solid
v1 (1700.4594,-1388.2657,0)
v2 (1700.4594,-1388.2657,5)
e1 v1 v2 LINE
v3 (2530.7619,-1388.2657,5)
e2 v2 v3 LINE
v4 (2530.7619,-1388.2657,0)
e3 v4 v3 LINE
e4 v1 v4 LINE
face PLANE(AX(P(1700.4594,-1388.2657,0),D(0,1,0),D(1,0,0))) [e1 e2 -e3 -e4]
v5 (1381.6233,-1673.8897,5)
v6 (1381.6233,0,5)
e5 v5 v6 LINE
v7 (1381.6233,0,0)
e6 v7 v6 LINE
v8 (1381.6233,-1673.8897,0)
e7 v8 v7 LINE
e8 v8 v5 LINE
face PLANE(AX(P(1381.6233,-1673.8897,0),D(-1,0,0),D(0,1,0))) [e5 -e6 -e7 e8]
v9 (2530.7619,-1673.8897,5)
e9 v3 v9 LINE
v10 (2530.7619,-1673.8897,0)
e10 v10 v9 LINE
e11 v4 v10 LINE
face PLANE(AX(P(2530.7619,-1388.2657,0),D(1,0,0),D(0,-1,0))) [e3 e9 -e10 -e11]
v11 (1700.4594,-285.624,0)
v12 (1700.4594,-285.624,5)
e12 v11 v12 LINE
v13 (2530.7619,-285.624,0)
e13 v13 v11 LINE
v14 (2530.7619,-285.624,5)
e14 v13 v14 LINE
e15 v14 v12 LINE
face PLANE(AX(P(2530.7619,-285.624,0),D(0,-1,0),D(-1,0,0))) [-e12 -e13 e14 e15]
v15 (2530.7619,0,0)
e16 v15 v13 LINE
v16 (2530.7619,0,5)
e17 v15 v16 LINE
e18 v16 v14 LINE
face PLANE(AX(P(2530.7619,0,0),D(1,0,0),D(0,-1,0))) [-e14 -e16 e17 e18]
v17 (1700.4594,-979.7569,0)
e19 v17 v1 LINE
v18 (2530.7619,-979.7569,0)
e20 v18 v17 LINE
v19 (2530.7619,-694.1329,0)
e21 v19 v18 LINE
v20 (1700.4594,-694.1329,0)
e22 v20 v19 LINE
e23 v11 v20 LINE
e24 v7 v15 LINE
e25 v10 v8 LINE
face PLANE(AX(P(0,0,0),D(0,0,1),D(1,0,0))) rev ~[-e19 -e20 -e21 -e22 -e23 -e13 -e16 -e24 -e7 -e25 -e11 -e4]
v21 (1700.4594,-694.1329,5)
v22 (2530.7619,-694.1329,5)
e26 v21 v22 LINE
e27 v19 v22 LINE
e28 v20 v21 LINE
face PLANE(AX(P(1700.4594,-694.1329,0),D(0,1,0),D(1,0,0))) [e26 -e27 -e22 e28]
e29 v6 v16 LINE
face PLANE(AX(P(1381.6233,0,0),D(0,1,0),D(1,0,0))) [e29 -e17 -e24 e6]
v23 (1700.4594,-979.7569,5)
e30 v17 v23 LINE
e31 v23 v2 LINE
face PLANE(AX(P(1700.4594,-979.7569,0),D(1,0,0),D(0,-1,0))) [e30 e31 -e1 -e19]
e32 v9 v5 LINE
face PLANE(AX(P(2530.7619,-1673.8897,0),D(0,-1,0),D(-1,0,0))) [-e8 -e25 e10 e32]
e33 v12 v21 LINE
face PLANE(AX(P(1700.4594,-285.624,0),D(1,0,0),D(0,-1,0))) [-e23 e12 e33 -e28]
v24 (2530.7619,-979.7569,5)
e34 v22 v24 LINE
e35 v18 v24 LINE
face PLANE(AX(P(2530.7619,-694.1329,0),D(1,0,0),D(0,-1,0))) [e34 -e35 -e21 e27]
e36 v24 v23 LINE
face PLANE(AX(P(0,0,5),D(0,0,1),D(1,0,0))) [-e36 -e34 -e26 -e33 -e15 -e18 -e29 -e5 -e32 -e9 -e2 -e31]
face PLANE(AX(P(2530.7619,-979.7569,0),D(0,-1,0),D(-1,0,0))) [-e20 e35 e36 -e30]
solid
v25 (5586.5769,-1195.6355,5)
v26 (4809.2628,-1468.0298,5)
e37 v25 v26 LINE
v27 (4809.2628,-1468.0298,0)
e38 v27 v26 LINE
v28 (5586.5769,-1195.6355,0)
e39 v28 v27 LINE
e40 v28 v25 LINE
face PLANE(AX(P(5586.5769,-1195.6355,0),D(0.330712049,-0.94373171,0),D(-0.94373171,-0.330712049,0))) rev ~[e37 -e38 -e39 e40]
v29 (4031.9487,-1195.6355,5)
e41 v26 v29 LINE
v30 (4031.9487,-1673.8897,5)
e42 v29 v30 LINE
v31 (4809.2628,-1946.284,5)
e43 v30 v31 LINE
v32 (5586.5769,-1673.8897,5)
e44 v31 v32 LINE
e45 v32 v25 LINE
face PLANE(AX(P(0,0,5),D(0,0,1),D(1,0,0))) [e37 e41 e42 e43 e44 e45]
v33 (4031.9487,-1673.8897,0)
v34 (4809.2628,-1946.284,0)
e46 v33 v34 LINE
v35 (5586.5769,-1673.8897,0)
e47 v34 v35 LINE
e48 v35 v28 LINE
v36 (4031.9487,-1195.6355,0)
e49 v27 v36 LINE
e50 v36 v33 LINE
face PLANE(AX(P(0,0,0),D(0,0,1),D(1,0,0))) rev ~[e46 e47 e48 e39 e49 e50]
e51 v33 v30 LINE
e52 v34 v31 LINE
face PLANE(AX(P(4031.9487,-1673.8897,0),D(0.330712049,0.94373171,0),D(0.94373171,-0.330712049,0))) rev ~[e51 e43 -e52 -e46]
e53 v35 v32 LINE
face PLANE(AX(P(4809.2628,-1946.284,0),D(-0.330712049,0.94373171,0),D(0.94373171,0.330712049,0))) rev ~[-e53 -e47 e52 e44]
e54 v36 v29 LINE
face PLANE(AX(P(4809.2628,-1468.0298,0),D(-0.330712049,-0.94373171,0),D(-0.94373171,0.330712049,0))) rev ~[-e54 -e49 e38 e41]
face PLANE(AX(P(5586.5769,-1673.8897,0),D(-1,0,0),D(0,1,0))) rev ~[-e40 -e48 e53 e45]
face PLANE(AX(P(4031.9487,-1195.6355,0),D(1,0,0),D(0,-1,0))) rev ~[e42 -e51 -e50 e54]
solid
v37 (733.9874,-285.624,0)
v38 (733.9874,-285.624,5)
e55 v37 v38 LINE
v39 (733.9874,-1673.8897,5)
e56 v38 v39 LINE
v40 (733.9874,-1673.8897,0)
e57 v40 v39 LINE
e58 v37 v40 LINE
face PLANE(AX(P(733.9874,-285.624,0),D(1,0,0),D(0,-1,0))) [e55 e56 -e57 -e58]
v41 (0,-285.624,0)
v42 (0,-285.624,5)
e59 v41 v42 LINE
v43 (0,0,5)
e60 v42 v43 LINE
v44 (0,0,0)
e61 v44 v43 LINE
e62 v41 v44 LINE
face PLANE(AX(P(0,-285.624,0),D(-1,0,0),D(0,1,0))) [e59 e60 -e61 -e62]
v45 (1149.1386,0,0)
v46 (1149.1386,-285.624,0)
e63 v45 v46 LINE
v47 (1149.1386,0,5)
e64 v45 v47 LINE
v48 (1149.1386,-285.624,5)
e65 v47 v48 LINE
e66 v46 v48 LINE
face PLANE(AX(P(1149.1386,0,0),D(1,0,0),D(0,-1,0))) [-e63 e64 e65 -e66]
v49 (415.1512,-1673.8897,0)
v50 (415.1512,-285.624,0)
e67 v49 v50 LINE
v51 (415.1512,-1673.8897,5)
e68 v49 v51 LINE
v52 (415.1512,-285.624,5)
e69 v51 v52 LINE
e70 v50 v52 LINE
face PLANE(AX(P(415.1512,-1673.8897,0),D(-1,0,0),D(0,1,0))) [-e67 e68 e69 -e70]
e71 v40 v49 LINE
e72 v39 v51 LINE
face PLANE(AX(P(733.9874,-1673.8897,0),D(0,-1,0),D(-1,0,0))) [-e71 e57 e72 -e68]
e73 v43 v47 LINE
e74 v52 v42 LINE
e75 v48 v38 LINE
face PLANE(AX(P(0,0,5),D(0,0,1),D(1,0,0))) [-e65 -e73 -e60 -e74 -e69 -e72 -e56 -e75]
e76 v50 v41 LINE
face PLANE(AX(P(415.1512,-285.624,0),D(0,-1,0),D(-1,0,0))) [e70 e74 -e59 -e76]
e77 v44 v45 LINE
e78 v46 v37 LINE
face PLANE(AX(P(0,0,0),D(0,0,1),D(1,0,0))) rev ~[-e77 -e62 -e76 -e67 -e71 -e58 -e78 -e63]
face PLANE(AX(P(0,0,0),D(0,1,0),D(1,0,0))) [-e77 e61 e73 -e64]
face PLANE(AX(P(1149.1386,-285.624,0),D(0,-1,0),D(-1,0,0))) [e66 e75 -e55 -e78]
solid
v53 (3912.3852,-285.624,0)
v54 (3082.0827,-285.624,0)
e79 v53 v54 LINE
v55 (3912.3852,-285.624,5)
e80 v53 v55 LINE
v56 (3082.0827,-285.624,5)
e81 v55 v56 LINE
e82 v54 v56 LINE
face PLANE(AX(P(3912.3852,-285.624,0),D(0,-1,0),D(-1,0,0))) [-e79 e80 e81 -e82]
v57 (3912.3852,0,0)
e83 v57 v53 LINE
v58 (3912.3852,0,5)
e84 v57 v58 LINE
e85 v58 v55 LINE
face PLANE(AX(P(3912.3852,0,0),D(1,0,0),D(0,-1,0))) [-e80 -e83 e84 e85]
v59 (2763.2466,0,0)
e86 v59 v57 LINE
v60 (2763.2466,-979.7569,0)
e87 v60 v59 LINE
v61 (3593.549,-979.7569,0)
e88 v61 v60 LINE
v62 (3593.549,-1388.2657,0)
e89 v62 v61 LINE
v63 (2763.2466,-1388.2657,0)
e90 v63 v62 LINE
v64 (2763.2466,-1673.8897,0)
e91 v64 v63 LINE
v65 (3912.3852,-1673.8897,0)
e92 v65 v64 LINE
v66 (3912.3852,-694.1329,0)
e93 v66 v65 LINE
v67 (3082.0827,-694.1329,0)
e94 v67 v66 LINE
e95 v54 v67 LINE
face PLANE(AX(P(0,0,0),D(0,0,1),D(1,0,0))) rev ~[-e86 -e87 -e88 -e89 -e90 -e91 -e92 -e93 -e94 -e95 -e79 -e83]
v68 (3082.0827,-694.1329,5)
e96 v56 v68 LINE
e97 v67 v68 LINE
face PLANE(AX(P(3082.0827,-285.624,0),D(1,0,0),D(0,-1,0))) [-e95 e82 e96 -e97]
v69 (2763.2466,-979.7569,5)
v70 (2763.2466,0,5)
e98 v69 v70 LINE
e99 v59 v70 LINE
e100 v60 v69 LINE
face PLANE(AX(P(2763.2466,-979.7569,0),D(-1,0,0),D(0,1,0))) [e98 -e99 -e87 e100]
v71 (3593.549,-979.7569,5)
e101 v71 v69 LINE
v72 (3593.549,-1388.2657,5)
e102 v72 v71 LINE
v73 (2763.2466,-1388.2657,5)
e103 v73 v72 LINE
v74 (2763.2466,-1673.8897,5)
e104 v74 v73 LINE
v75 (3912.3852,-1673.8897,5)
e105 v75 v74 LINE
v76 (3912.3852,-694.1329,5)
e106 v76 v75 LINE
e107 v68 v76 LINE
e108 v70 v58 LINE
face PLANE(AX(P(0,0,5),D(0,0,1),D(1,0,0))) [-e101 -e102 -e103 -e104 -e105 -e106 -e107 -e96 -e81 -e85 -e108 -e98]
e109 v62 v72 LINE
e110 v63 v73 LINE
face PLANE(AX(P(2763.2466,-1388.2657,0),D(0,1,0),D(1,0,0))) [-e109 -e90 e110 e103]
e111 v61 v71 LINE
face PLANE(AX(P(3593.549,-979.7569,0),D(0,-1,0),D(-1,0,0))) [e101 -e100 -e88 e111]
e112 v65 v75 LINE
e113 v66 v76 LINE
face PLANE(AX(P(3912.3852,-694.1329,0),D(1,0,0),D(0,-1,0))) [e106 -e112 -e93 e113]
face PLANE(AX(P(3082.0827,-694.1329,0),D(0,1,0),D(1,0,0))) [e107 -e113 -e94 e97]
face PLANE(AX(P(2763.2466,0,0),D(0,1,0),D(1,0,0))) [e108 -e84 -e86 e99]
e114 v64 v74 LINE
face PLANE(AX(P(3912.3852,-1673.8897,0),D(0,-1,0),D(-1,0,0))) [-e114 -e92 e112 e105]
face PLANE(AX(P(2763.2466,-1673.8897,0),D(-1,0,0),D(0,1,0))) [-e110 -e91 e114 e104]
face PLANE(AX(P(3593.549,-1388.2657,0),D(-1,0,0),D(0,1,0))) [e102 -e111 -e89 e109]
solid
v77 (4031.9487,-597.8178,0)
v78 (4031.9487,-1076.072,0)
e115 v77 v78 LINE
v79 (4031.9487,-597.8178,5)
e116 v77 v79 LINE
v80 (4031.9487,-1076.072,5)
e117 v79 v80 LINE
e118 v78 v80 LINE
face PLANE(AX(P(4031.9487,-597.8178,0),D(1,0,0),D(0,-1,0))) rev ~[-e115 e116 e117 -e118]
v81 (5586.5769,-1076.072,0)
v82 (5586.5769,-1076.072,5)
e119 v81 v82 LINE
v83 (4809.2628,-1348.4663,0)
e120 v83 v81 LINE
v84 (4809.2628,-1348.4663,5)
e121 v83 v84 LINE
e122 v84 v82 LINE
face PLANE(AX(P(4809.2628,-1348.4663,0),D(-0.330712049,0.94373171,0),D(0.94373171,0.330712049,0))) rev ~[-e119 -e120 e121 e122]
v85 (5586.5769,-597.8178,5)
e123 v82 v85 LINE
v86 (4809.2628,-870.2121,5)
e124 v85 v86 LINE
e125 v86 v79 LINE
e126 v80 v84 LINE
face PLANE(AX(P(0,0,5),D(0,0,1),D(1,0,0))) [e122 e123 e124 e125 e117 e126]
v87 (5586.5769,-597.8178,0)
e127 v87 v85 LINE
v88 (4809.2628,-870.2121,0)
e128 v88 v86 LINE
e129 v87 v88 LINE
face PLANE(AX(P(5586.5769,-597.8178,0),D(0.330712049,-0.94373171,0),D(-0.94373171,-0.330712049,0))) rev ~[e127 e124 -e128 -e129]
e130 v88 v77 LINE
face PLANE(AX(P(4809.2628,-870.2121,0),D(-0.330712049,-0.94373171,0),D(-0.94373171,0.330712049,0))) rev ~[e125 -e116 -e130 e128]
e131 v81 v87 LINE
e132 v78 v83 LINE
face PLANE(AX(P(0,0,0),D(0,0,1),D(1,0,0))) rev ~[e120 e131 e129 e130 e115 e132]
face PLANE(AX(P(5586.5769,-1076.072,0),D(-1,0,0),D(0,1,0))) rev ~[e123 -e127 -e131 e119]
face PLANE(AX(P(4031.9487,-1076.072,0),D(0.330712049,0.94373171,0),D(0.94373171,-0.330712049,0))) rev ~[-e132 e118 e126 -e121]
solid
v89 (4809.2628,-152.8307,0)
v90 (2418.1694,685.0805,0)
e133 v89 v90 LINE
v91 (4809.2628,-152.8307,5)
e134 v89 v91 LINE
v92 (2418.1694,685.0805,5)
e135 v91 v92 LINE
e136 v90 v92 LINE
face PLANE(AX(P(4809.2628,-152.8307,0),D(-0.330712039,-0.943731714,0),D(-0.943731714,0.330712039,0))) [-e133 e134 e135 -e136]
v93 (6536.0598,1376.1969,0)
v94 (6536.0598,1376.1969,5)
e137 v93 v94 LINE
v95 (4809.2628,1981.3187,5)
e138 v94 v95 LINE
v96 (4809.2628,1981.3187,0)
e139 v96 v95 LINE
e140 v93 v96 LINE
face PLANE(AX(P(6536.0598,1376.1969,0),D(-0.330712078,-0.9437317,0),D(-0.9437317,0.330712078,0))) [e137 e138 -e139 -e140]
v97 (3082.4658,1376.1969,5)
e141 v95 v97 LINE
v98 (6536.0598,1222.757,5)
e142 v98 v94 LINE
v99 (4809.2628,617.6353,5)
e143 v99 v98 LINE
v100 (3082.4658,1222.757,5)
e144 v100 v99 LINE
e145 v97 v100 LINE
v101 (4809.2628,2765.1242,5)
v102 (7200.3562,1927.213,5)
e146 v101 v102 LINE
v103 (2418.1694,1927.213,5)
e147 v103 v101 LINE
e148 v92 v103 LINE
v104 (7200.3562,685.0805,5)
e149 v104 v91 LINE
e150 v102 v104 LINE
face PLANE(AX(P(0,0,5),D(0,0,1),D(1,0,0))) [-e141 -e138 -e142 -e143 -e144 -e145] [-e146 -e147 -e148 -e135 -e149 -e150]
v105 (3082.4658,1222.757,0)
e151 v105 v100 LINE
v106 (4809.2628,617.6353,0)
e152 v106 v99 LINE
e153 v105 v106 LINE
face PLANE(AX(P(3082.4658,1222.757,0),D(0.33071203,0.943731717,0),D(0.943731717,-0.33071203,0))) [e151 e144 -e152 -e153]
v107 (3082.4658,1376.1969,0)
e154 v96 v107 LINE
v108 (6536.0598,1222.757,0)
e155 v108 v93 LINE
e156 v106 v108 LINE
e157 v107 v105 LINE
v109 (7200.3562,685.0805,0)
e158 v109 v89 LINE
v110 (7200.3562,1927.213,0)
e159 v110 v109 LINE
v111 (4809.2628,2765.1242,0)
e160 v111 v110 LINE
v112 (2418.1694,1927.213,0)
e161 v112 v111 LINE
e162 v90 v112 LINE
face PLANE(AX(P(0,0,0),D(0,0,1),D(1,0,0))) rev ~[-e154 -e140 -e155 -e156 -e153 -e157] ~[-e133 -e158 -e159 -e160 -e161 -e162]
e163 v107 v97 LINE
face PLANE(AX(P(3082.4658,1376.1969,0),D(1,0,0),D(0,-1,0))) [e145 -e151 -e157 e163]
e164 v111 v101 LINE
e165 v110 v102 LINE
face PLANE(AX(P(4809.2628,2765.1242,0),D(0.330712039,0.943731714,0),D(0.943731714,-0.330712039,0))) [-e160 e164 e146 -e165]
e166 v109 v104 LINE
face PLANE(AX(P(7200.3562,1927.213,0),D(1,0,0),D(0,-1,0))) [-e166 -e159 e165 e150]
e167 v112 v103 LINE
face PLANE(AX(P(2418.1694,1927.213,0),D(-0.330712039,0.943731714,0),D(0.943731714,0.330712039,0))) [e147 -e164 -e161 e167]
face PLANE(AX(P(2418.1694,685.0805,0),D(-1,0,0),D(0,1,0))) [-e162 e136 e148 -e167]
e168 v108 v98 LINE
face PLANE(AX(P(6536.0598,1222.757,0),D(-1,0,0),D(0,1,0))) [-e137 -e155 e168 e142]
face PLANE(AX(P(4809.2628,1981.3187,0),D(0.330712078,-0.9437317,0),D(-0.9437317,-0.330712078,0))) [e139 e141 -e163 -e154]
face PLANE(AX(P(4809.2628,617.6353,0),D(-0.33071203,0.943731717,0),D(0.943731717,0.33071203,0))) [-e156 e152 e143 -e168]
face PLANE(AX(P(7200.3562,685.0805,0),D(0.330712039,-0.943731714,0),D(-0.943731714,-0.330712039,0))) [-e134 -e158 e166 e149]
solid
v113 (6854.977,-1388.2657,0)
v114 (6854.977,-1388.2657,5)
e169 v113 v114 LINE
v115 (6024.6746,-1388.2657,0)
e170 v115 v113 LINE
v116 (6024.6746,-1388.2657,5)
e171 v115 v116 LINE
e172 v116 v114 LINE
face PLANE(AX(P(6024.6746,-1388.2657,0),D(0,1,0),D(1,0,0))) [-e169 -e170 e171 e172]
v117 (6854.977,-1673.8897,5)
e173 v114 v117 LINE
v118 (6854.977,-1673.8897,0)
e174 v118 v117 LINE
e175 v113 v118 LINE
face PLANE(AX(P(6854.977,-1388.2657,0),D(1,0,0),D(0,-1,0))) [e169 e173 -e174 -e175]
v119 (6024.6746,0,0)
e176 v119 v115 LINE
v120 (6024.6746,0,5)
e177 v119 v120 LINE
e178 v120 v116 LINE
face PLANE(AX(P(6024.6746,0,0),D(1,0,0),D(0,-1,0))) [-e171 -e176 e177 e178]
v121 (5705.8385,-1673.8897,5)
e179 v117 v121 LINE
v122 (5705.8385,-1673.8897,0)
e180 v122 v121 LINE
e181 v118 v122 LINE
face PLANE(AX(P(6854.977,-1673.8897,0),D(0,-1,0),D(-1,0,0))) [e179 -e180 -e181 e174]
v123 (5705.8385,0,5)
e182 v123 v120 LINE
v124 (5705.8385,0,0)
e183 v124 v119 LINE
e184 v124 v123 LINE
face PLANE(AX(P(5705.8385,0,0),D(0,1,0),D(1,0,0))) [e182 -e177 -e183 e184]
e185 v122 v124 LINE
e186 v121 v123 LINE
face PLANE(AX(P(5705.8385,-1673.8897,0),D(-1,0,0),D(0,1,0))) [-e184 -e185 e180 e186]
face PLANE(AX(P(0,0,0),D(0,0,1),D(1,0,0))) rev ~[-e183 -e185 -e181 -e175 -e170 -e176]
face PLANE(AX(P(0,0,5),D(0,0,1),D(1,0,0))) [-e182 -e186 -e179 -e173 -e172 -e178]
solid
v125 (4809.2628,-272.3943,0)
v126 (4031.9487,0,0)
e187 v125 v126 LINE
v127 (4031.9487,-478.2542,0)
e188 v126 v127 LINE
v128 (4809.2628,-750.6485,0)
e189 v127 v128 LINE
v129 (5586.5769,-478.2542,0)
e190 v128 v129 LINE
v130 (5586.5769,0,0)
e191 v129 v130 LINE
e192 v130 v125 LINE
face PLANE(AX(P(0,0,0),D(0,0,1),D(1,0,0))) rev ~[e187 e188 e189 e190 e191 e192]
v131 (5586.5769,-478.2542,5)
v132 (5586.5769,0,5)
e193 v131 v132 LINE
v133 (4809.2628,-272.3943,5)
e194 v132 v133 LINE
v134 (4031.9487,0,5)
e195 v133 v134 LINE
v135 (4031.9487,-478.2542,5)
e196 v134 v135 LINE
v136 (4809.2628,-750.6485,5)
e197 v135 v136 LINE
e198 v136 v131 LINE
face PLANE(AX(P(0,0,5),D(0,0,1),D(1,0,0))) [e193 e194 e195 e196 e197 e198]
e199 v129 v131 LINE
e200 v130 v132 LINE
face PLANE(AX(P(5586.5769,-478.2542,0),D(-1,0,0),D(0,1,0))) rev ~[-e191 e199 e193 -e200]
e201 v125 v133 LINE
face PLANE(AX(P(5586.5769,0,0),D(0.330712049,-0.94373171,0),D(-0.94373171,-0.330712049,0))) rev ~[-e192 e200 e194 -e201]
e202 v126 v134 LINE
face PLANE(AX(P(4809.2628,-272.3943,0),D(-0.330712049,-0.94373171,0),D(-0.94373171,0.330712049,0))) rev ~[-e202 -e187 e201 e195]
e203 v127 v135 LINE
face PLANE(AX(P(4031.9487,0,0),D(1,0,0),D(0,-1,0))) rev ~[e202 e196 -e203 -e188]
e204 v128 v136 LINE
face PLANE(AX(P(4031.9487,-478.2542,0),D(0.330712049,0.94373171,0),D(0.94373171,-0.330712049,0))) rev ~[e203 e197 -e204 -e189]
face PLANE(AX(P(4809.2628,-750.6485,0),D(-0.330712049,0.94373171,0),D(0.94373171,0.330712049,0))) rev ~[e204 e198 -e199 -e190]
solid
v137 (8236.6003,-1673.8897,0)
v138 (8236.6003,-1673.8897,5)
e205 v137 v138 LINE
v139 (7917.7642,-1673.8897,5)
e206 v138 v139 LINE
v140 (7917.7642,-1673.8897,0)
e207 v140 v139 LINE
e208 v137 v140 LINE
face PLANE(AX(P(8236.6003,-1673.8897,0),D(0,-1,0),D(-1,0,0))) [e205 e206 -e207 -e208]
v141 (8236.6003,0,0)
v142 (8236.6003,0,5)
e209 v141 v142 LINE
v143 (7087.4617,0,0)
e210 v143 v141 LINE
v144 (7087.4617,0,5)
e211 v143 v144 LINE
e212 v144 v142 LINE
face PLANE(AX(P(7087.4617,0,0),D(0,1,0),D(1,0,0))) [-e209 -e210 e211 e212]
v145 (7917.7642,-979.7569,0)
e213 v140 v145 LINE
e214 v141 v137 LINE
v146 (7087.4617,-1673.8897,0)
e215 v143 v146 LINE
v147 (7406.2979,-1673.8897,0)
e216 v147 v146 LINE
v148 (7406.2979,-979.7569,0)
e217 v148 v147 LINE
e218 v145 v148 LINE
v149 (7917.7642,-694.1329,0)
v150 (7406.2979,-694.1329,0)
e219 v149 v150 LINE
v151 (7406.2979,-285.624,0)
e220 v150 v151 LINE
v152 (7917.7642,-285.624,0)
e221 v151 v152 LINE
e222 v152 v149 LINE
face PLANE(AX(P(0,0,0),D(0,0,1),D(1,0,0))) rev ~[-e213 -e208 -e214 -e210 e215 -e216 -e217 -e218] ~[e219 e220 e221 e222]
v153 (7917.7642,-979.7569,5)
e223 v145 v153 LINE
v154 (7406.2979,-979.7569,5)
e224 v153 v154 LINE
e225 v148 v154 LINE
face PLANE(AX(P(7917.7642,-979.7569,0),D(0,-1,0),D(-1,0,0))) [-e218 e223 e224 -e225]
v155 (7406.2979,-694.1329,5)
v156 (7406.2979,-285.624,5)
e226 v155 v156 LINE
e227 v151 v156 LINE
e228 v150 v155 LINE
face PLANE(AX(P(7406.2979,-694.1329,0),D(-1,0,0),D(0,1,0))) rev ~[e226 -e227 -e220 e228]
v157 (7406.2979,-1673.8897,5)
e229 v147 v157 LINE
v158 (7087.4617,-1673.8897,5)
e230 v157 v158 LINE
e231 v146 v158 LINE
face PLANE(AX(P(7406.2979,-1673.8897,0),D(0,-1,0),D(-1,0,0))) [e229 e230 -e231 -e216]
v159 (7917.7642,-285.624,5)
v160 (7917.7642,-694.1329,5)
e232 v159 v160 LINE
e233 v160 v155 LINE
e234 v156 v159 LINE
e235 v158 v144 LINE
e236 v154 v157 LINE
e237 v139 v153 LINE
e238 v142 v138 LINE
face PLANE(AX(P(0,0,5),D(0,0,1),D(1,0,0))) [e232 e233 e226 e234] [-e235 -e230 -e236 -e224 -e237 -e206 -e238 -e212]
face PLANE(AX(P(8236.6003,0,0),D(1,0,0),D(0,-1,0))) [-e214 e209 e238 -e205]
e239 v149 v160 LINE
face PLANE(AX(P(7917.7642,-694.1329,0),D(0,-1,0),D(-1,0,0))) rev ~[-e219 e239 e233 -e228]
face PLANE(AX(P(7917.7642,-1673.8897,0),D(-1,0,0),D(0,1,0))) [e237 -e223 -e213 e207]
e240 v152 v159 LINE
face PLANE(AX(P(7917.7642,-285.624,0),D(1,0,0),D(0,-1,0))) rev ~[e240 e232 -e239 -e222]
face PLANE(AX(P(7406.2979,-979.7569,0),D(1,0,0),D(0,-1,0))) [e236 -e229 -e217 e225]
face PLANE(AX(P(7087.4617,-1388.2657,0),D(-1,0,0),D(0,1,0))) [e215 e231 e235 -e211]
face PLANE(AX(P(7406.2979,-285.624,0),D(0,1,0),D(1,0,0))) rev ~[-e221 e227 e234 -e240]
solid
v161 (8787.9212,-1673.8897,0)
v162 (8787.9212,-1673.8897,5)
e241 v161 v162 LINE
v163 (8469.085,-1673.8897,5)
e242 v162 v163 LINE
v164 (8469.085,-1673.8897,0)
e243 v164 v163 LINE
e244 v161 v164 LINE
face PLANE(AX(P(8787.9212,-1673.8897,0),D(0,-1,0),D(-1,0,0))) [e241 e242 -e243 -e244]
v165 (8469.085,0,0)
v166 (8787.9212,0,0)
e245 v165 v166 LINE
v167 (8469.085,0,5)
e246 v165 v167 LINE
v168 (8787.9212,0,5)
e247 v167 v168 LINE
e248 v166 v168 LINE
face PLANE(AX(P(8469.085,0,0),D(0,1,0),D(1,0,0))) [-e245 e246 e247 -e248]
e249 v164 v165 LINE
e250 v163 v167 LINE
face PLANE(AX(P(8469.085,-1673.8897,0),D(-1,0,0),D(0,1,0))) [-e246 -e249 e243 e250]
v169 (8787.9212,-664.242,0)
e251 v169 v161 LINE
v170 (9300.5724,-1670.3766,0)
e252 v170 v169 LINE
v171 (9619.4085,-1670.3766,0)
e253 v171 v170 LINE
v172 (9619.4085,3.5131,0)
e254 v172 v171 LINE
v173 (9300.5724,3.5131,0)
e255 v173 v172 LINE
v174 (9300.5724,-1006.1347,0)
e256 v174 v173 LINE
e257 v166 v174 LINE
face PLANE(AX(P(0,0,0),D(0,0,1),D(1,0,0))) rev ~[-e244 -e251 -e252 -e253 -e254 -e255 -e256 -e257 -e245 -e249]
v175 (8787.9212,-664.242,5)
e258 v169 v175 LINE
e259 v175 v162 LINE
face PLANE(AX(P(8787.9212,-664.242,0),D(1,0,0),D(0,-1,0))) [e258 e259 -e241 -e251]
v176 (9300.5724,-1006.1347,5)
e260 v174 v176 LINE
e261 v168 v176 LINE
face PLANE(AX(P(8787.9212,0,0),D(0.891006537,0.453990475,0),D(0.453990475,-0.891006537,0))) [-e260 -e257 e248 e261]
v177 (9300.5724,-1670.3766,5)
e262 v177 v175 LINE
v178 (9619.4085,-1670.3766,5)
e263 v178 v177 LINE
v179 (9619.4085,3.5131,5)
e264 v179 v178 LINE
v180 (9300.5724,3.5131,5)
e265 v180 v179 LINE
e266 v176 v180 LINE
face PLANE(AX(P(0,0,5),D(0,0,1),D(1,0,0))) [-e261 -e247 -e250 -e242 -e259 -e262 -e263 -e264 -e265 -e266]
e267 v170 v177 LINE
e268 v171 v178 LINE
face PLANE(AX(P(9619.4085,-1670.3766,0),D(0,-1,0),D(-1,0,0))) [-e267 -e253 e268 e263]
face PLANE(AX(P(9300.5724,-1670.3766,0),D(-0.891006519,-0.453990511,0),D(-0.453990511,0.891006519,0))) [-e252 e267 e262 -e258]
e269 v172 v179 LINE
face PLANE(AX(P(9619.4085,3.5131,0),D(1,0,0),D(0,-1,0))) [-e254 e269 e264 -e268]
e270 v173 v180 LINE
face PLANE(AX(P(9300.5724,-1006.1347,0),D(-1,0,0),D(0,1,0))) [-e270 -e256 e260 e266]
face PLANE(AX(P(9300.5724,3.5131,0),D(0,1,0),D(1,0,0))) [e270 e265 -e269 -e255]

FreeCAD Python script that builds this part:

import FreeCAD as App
import Part
import Sketcher
Q = App.Units.Quantity


def add_polygon(sketch, points):
    """Adds a closed chain of lines whose ends are joined by coincident constraints."""
    first, n = sketch.GeometryCount, len(points)
    for a, b in zip(points, points[1:] + points[:1]):
        sketch.addGeometry(Part.LineSegment(App.Vector(*a, 0), App.Vector(*b, 0)), False)
    for i in range(n):
        sketch.addConstraint(Sketcher.Constraint("Coincident", first + i, 2, first + (i + 1) % n, 1))

doc = App.newDocument("Part")
body = doc.addObject("PartDesign::Body", "Body")
body.AllowCompound = True

# Sketch on XY plane
sketch1 = body.newObject("Sketcher::SketchObject", "Sketch")
sketch1.AttachmentSupport = (doc.getObject("XY_Plane"), [""])
sketch1.MapMode = "FlatFace"
add_polygon(sketch1, [(1149.1386, 0), (0, 0), (0, -285.624), (415.1512, -285.624), (415.1512, -1673.8897), (733.9874, -1673.8897), (733.9874, -285.624), (1149.1386, -285.624)])  # lines 0-7
add_polygon(sketch1, [(2530.7619, 0), (1381.6233, 0), (1381.6233, -1673.8897), (2530.7619, -1673.8897), (2530.7619, -1388.2657), (1700.4594, -1388.2657), (1700.4594, -979.7569), (2530.7619, -979.7569), (2530.7619, -694.1329), (1700.4594, -694.1329), (1700.4594, -285.624), (2530.7619, -285.624)])  # lines 8-19
add_polygon(sketch1, [(3912.3852, 0), (2763.2466, 0), (2763.2466, -979.7569), (3593.549, -979.7569), (3593.549, -1388.2657), (2763.2466, -1388.2657), (2763.2466, -1673.8897), (3912.3852, -1673.8897), (3912.3852, -694.1329), (3082.0827, -694.1329), (3082.0827, -285.624), (3912.3852, -285.624)])  # lines 20-31
add_polygon(sketch1, [(6024.6746, 0), (5705.8385, 0), (5705.8385, -1673.8897), (6854.977, -1673.8897), (6854.977, -1388.2657), (6024.6746, -1388.2657)])  # lines 32-37
add_polygon(sketch1, [(7087.4617, 0), (7087.4617, -1673.8897), (7406.2979, -1673.8897), (7406.2979, -979.7569), (7917.7642, -979.7569), (7917.7642, -1673.8897), (8236.6003, -1673.8897), (8236.6003, 0)])  # lines 38-45
add_polygon(sketch1, [(7406.2979, -694.1329), (7406.2979, -285.624), (7917.7642, -285.624), (7917.7642, -694.1329)])  # lines 46-49
add_polygon(sketch1, [(8787.9212, 0), (8469.085, 0), (8469.085, -1673.8897), (8787.9212, -1673.8897), (8787.9212, -664.242), (9300.5724, -1670.3766), (9619.4085, -1670.3766), (9619.4085, 3.5131), (9300.5724, 3.5131), (9300.5724, -1006.1347)])  # lines 50-59
add_polygon(sketch1, [(4809.2628, -272.3943), (4031.9487, 0), (4031.9487, -478.2542), (4809.2628, -750.6485), (5586.5769, -478.2542), (5586.5769, 0)])  # lines 60-65
add_polygon(sketch1, [(4809.2628, -870.2121), (4031.9487, -597.8178), (4031.9487, -1076.072), (4809.2628, -1348.4663), (5586.5769, -1076.072), (5586.5769, -597.8178)])  # lines 66-71
add_polygon(sketch1, [(4809.2628, -1468.0298), (4031.9487, -1195.6355), (4031.9487, -1673.8897), (4809.2628, -1946.284), (5586.5769, -1673.8897), (5586.5769, -1195.6355)])  # lines 72-77
add_polygon(sketch1, [(2418.1694, 685.0805), (4809.2628, -152.8307), (7200.3562, 685.0805), (7200.3562, 1927.213), (4809.2628, 2765.1242), (2418.1694, 1927.213)])  # lines 78-83
add_polygon(sketch1, [(3082.4658, 1376.1969), (4809.2628, 1981.3187), (6536.0598, 1376.1969), (6536.0598, 1222.757), (4809.2628, 617.6353), (3082.4658, 1222.757)])  # lines 84-89
sketch1.addConstraint(Sketcher.Constraint("Horizontal", 0))
sketch1.addConstraint(Sketcher.Constraint("Vertical", 1))
sketch1.addConstraint(Sketcher.Constraint("Horizontal", 2))
sketch1.addConstraint(Sketcher.Constraint("Vertical", 3))
sketch1.addConstraint(Sketcher.Constraint("Horizontal", 4))
sketch1.addConstraint(Sketcher.Constraint("Vertical", 5))
sketch1.addConstraint(Sketcher.Constraint("Horizontal", 6))
sketch1.addConstraint(Sketcher.Constraint("Vertical", 7))
sketch1.addConstraint(Sketcher.Constraint("Horizontal", 8))
sketch1.addConstraint(Sketcher.Constraint("Vertical", 9))
sketch1.addConstraint(Sketcher.Constraint("Horizontal", 10))
sketch1.addConstraint(Sketcher.Constraint("Vertical", 11))
sketch1.addConstraint(Sketcher.Constraint("Horizontal", 12))
sketch1.addConstraint(Sketcher.Constraint("Vertical", 13))
sketch1.addConstraint(Sketcher.Constraint("Horizontal", 14))
sketch1.addConstraint(Sketcher.Constraint("Vertical", 15))
sketch1.addConstraint(Sketcher.Constraint("Horizontal", 16))
sketch1.addConstraint(Sketcher.Constraint("Vertical", 17))
sketch1.addConstraint(Sketcher.Constraint("Horizontal", 18))
sketch1.addConstraint(Sketcher.Constraint("Vertical", 19))
sketch1.addConstraint(Sketcher.Constraint("Horizontal", 20))
sketch1.addConstraint(Sketcher.Constraint("Vertical", 21))
sketch1.addConstraint(Sketcher.Constraint("Horizontal", 22))
sketch1.addConstraint(Sketcher.Constraint("Vertical", 23))
sketch1.addConstraint(Sketcher.Constraint("Horizontal", 24))
sketch1.addConstraint(Sketcher.Constraint("Vertical", 25))
sketch1.addConstraint(Sketcher.Constraint("Horizontal", 26))
sketch1.addConstraint(Sketcher.Constraint("Vertical", 27))
sketch1.addConstraint(Sketcher.Constraint("Horizontal", 28))
sketch1.addConstraint(Sketcher.Constraint("Vertical", 29))
sketch1.addConstraint(Sketcher.Constraint("Horizontal", 30))
sketch1.addConstraint(Sketcher.Constraint("Vertical", 31))
sketch1.addConstraint(Sketcher.Constraint("Horizontal", 32))
sketch1.addConstraint(Sketcher.Constraint("Vertical", 33))
sketch1.addConstraint(Sketcher.Constraint("Horizontal", 34))
sketch1.addConstraint(Sketcher.Constraint("Vertical", 35))
sketch1.addConstraint(Sketcher.Constraint("Horizontal", 36))
sketch1.addConstraint(Sketcher.Constraint("Vertical", 37))
sketch1.addConstraint(Sketcher.Constraint("Vertical", 38))
sketch1.addConstraint(Sketcher.Constraint("Horizontal", 39))
sketch1.addConstraint(Sketcher.Constraint("Vertical", 40))
sketch1.addConstraint(Sketcher.Constraint("Horizontal", 41))
sketch1.addConstraint(Sketcher.Constraint("Vertical", 42))
sketch1.addConstraint(Sketcher.Constraint("Horizontal", 43))
sketch1.addConstraint(Sketcher.Constraint("Vertical", 44))
sketch1.addConstraint(Sketcher.Constraint("Horizontal", 45))
sketch1.addConstraint(Sketcher.Constraint("Vertical", 46))
sketch1.addConstraint(Sketcher.Constraint("Horizontal", 47))
sketch1.addConstraint(Sketcher.Constraint("Vertical", 48))
sketch1.addConstraint(Sketcher.Constraint("Horizontal", 49))
sketch1.addConstraint(Sketcher.Constraint("Horizontal", 50))
sketch1.addConstraint(Sketcher.Constraint("Vertical", 51))
sketch1.addConstraint(Sketcher.Constraint("Horizontal", 52))
sketch1.addConstraint(Sketcher.Constraint("Vertical", 53))
sketch1.addConstraint(Sketcher.Constraint("Horizontal", 55))
sketch1.addConstraint(Sketcher.Constraint("Vertical", 56))
sketch1.addConstraint(Sketcher.Constraint("Horizontal", 57))
sketch1.addConstraint(Sketcher.Constraint("Vertical", 58))
sketch1.addConstraint(Sketcher.Constraint("Vertical", 61))
sketch1.addConstraint(Sketcher.Constraint("Vertical", 64))
sketch1.addConstraint(Sketcher.Constraint("Vertical", 67))
sketch1.addConstraint(Sketcher.Constraint("Vertical", 70))
sketch1.addConstraint(Sketcher.Constraint("Vertical", 73))
sketch1.addConstraint(Sketcher.Constraint("Vertical", 76))
sketch1.addConstraint(Sketcher.Constraint("Vertical", 80))
sketch1.addConstraint(Sketcher.Constraint("Vertical", 83))
sketch1.addConstraint(Sketcher.Constraint("Vertical", 86))
sketch1.addConstraint(Sketcher.Constraint("Vertical", 89))
sketch1.addConstraint(Sketcher.Constraint("Coincident", 0, 2, -1, 1))
sketch1.addConstraint(Sketcher.Constraint("PointOnObject", 8, 2, -1))
sketch1.addConstraint(Sketcher.Constraint("PointOnObject", 20, 2, -1))
sketch1.addConstraint(Sketcher.Constraint("PointOnObject", 32, 2, -1))
sketch1.addConstraint(Sketcher.Constraint("PointOnObject", 44, 2, -1))
sketch1.addConstraint(Sketcher.Constraint("PointOnObject", 50, 2, -1))
sketch1.addConstraint(Sketcher.Constraint("PointOnObject", 60, 2, -1))
sketch1.addConstraint(Sketcher.Constraint("PointOnObject", 64, 2, -1))
sketch1.addConstraint(Sketcher.Constraint("Parallel", 54, 59))
sketch1.addConstraint(Sketcher.Constraint("Parallel", 60, 62))
sketch1.addConstraint(Sketcher.Constraint("Parallel", 63, 65))
sketch1.addConstraint(Sketcher.Constraint("Parallel", 62, 66))
sketch1.addConstraint(Sketcher.Constraint("Parallel", 66, 68))
sketch1.addConstraint(Sketcher.Constraint("Parallel", 65, 69))
sketch1.addConstraint(Sketcher.Constraint("Parallel", 69, 71))
sketch1.addConstraint(Sketcher.Constraint("Parallel", 68, 72))
sketch1.addConstraint(Sketcher.Constraint("Parallel", 72, 74))
sketch1.addConstraint(Sketcher.Constraint("Parallel", 71, 75))
sketch1.addConstraint(Sketcher.Constraint("Parallel", 75, 77))
sketch1.addConstraint(Sketcher.Constraint("Parallel", 74, 78))
sketch1.addConstraint(Sketcher.Constraint("Parallel", 77, 79))
sketch1.addConstraint(Sketcher.Constraint("Parallel", 78, 81))
sketch1.addConstraint(Sketcher.Constraint("Parallel", 79, 82))
sketch1.addConstraint(Sketcher.Constraint("Parallel", 82, 84))
sketch1.addConstraint(Sketcher.Constraint("Parallel", 81, 85))
sketch1.addConstraint(Sketcher.Constraint("Parallel", 84, 87))
sketch1.addConstraint(Sketcher.Constraint("Parallel", 85, 88))
sketch1.addConstraint(Sketcher.Constraint("Horizontal", 2, 2, 5, 2))
sketch1.addConstraint(Sketcher.Constraint("Horizontal", 4, 2, 9, 2))
sketch1.addConstraint(Sketcher.Constraint("Horizontal", 6, 2, 17, 2))
sketch1.addConstraint(Sketcher.Constraint("Horizontal", 14, 2, 21, 2))
sketch1.addConstraint(Sketcher.Constraint("Horizontal", 12, 2, 23, 2))
sketch1.addConstraint(Sketcher.Constraint("Horizontal", 10, 2, 25, 2))
sketch1.addConstraint(Sketcher.Constraint("Horizontal", 16, 2, 27, 2))
sketch1.addConstraint(Sketcher.Constraint("Horizontal", 18, 2, 29, 2))
sketch1.addConstraint(Sketcher.Constraint("Horizontal", 26, 2, 33, 2))
sketch1.addConstraint(Sketcher.Constraint("Horizontal", 24, 2, 35, 2))
sketch1.addConstraint(Sketcher.Constraint("Horizontal", 34, 2, 38, 2))
sketch1.addConstraint(Sketcher.Constraint("Horizontal", 22, 2, 40, 2))
sketch1.addConstraint(Sketcher.Constraint("Horizontal", 39, 2, 42, 2))
sketch1.addConstraint(Sketcher.Constraint("Horizontal", 30, 2, 46, 2))
sketch1.addConstraint(Sketcher.Constraint("Horizontal", 28, 2, 48, 2))
sketch1.addConstraint(Sketcher.Constraint("Horizontal", 43, 2, 51, 2))
sketch1.addConstraint(Sketcher.Constraint("Horizontal", 61, 2, 63, 2))
sketch1.addConstraint(Sketcher.Constraint("Horizontal", 67, 2, 69, 2))
sketch1.addConstraint(Sketcher.Constraint("Horizontal", 66, 2, 70, 2))
sketch1.addConstraint(Sketcher.Constraint("Horizontal", 52, 2, 73, 2))
sketch1.addConstraint(Sketcher.Constraint("Horizontal", 73, 2, 75, 2))
sketch1.addConstraint(Sketcher.Constraint("Horizontal", 72, 2, 76, 2))
sketch1.addConstraint(Sketcher.Constraint("Horizontal", 80, 2, 82, 2))
sketch1.addConstraint(Sketcher.Constraint("Horizontal", 79, 2, 83, 2))
sketch1.addConstraint(Sketcher.Constraint("Horizontal", 86, 2, 88, 2))
sketch1.addConstraint(Sketcher.Constraint("Horizontal", 85, 2, 89, 2))
sketch1.addConstraint(Sketcher.Constraint("Vertical", 11, 2, 14, 2))
sketch1.addConstraint(Sketcher.Constraint("Vertical", 13, 2, 16, 2))
sketch1.addConstraint(Sketcher.Constraint("Vertical", 15, 2, 18, 2))
sketch1.addConstraint(Sketcher.Constraint("Vertical", 21, 2, 24, 2))
sketch1.addConstraint(Sketcher.Constraint("Vertical", 27, 2, 30, 2))
sketch1.addConstraint(Sketcher.Constraint("Vertical", 40, 2, 46, 2))
sketch1.addConstraint(Sketcher.Constraint("Vertical", 42, 2, 47, 2))
sketch1.addConstraint(Sketcher.Constraint("Vertical", 54, 2, 57, 2))
sketch1.addConstraint(Sketcher.Constraint("Vertical", 53, 2, 59, 2))
sketch1.addConstraint(Sketcher.Constraint("Vertical", 61, 2, 66, 2))
sketch1.addConstraint(Sketcher.Constraint("Vertical", 65, 2, 68, 2))
sketch1.addConstraint(Sketcher.Constraint("Vertical", 67, 2, 72, 2))
sketch1.addConstraint(Sketcher.Constraint("Vertical", 71, 2, 74, 2))
sketch1.addConstraint(Sketcher.Constraint("Vertical", 77, 2, 78, 2))
sketch1.addConstraint(Sketcher.Constraint("Vertical", 78, 2, 81, 2))
sketch1.addConstraint(Sketcher.Constraint("Vertical", 81, 2, 84, 2))
sketch1.addConstraint(Sketcher.Constraint("Equal", 2, 6))
sketch1.addConstraint(Sketcher.Constraint("Equal", 0, 8))
sketch1.addConstraint(Sketcher.Constraint("Equal", 10, 20))
sketch1.addConstraint(Sketcher.Constraint("Equal", 18, 22))
sketch1.addConstraint(Sketcher.Constraint("Equal", 24, 28))
sketch1.addConstraint(Sketcher.Constraint("Equal", 4, 32))
sketch1.addConstraint(Sketcher.Constraint("Equal", 26, 34))
sketch1.addConstraint(Sketcher.Constraint("Equal", 30, 36))
sketch1.addConstraint(Sketcher.Constraint("Equal", 32, 39))
sketch1.addConstraint(Sketcher.Constraint("Equal", 39, 43))
sketch1.addConstraint(Sketcher.Constraint("Equal", 34, 45))
sketch1.addConstraint(Sketcher.Constraint("Equal", 43, 50))
sketch1.addConstraint(Sketcher.Constraint("Equal", 52, 55))
sketch1.addConstraint(Sketcher.Constraint("Equal", 7, 11))
sketch1.addConstraint(Sketcher.Constraint("Equal", 11, 15))
sketch1.addConstraint(Sketcher.Constraint("Equal", 13, 17))
sketch1.addConstraint(Sketcher.Constraint("Equal", 51, 56))
sketch1.addConstraint(Sketcher.Constraint("Equal", 64, 67))
sketch1.addConstraint(Sketcher.Constraint("Equal", 70, 73))
sketch1.addConstraint(Sketcher.Constraint("Angle", 59, Q("117 deg")))
sketch1.addConstraint(Sketcher.Constraint("DistanceY", 86, 2, 86, 1, Q("153.44 mm")))
sketch1.addConstraint(Sketcher.Constraint("Distance", 60, Q("823.66 mm")))
sketch1.addConstraint(Sketcher.Constraint("DistanceX", 32, 2, 32, 1, Q("318.836 mm")))
sketch1.addConstraint(Sketcher.Constraint("DistanceY", 1, 2, 1, 1, Q("285.624 mm")))
sketch1.addConstraint(Sketcher.Constraint("DistanceY", 17, 1, 17, 2, Q("408.509 mm")))
sketch1.addConstraint(Sketcher.Constraint("Distance", 78, Q("2533.658 mm")))
sketch1.addConstraint(Sketcher.Constraint("DistanceX", 0, 2, 0, 1, Q("1149.1386 mm")))
sketch1.addConstraint(Sketcher.Constraint("DistanceY", 53, 1, 53, 2, Q("1009.6477 mm")))
sketch1.addConstraint(Sketcher.Constraint("DistanceY", 61, 2, 61, 1, Q("478.2542 mm")))
sketch1.addConstraint(Sketcher.Constraint("DistanceY", 80, 1, 80, 2, Q("1242.1325 mm")))
sketch1.addConstraint(Sketcher.Constraint("Distance", 54, Q("1129.2113 mm")))
sketch1.addConstraint(Sketcher.Constraint("Distance", 84, Q("1829.7542 mm")))
sketch1.addConstraint(Sketcher.Constraint("DistanceX", -1, 1, 10, 2, Q("2530.762 mm")))
sketch1.addConstraint(Sketcher.Constraint("DistanceX", -1, 1, 22, 2, Q("3593.549 mm")))
sketch1.addConstraint(Sketcher.Constraint("DistanceX", -1, 1, 34, 2, Q("6854.977 mm")))
sketch1.addConstraint(Sketcher.Constraint("DistanceX", -1, 1, 39, 2, Q("7406.298 mm")))
sketch1.addConstraint(Sketcher.Constraint("DistanceX", -1, 1, 50, 2, Q("8469.085 mm")))
sketch1.addConstraint(Sketcher.Constraint("DistanceX", -1, 1, 63, 2, Q("5586.577 mm")))
sketch1.addConstraint(Sketcher.Constraint("DistanceY", 67, 2, -1, 1, Q("1076.072 mm")))
sketch1.addConstraint(Sketcher.Constraint("DistanceY", 71, 2, -1, 1, Q("870.212 mm")))
sketch1.addConstraint(Sketcher.Constraint("DistanceY", -1, 1, 80, 2, Q("1927.213 mm")))
sketch1.addConstraint(Sketcher.Constraint("DistanceY", -1, 1, 85, 2, Q("1376.197 mm")))
pad1 = body.newObject("PartDesign::Pad", "Pad")
pad1.Profile = sketch1
pad1.Length = 5

doc.recompute()
